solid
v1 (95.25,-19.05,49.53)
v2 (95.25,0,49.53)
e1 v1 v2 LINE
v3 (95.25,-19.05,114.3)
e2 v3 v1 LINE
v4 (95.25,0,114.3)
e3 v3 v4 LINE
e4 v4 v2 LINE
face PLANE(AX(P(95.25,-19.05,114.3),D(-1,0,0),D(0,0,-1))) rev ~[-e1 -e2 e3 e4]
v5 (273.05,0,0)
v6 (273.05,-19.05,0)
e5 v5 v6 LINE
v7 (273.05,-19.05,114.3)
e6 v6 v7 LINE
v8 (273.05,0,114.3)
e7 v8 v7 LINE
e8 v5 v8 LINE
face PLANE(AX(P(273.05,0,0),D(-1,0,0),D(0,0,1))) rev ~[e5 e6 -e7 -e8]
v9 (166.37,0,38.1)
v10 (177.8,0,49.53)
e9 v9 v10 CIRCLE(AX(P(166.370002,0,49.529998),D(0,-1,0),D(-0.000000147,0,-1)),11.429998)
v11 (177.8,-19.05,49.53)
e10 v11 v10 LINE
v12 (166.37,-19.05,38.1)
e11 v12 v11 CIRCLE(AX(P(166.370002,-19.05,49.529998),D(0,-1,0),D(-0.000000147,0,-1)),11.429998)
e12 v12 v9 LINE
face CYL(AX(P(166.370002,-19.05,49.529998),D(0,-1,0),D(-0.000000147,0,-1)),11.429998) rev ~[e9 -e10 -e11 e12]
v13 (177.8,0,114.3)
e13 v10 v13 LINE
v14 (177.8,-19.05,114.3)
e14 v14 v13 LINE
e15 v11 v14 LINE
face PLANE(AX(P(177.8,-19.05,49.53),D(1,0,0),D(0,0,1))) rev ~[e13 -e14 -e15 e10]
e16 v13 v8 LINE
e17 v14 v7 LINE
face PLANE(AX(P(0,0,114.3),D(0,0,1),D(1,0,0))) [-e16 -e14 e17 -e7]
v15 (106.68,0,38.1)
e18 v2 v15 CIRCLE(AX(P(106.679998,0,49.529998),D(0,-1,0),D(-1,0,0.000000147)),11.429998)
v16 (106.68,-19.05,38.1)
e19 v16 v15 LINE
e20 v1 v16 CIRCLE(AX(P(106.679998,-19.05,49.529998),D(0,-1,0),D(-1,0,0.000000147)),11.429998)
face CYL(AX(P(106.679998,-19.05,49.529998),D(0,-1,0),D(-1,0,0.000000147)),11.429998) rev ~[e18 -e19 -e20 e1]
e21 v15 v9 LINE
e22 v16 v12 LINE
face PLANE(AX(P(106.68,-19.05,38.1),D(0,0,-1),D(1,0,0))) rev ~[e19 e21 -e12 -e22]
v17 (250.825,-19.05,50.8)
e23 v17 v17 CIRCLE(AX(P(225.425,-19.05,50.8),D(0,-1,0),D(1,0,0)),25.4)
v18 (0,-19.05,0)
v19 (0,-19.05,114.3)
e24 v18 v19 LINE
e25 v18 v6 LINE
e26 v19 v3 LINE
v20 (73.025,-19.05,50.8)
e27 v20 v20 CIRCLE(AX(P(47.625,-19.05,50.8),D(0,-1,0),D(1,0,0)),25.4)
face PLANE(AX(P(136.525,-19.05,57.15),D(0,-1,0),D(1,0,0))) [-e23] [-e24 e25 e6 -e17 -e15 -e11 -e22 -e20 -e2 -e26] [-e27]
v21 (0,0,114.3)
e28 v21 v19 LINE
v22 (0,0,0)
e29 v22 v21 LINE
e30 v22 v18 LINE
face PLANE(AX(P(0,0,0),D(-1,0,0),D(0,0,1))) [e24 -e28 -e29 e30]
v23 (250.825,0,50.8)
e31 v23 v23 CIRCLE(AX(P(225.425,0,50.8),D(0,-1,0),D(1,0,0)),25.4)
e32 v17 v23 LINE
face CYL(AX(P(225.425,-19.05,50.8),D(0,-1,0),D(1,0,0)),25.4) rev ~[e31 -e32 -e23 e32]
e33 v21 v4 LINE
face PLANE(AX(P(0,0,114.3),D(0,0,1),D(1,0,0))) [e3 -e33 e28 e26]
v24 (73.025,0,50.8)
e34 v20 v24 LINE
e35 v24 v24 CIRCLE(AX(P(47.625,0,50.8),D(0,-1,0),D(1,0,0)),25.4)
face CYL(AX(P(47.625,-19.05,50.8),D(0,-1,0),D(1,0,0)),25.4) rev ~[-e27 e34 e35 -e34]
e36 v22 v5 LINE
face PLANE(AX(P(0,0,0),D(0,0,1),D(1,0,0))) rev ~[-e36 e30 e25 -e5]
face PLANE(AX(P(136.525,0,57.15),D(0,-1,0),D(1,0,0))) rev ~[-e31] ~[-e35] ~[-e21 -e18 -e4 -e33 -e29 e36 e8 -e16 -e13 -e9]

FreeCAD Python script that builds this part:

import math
import FreeCAD as App
import Part
import Sketcher

V = App.Vector
Q = App.Units.Quantity


def add_polygon(sketch, points):
    """Adds a closed chain of lines whose ends are joined by coincident constraints."""
    first, n = sketch.GeometryCount, len(points)
    for a, b in zip(points, points[1:] + points[:1]):
        sketch.addGeometry(Part.LineSegment(App.Vector(*a, 0), App.Vector(*b, 0)), False)
    for i in range(n):
        sketch.addConstraint(Sketcher.Constraint("Coincident", first + i, 2, first + (i + 1) % n, 1))

doc = App.newDocument("Part")
body = doc.addObject("PartDesign::Body", "Body")

sketch1 = body.newObject("Sketcher::SketchObject", "Sketch")
sketch1.AttachmentSupport = (doc.getObject("XZ_Plane"), [""])
sketch1.MapMode = "FlatFace"
add_polygon(sketch1, [(0, 114), (0, 0), (273, 0), (273, 114)])
sketch1.addConstraint(Sketcher.Constraint("Vertical", 0))
sketch1.addConstraint(Sketcher.Constraint("Horizontal", 1))
sketch1.addConstraint(Sketcher.Constraint("Vertical", 2))
sketch1.addConstraint(Sketcher.Constraint("Horizontal", 3))
sketch1.addConstraint(Sketcher.Constraint("Coincident", 0, 2, -1, 1))
sketch1.addConstraint(Sketcher.Constraint("DistanceY", 0, 2, 0, 1, Q("4.5 in")))
sketch1.addConstraint(Sketcher.Constraint("DistanceX", 1, 1, 1, 2, Q("10.75 in")))
pad1 = body.newObject("PartDesign::Pad", "Pad")
pad1.Profile = sketch1
pad1.Length = Q("0.75 in")

sketch2 = body.newObject("Sketcher::SketchObject", "Sketch001")
sketch2.AttachmentSupport = (doc.getObject("XZ_Plane"), [""])
sketch2.MapMode = "FlatFace"
sketch2.AttachmentOffset = App.Placement(V(0, 0, 0.75 * 25.4), App.Rotation())
sketch2.addGeometry(Part.Circle(V(48, 51, 0), V(0, 0, 1), 25), False)
sketch2.addGeometry(Part.Circle(V(225, 51, 0), V(0, 0, 1), 25), False)
sketch2.addConstraint(Sketcher.Constraint("Equal", 0, 1))
sketch2.addConstraint(Sketcher.Constraint("Horizontal", 0, 3, 1, 3))
sketch2.addConstraint(Sketcher.Constraint("Diameter", 0, Q("2 in")))
sketch2.addConstraint(Sketcher.Constraint("DistanceY", -1, 1, 0, 3, Q("2 in")))
sketch2.addConstraint(Sketcher.Constraint("DistanceX", 0, 3, 1, 3, Q("7 in")))
sketch2.addConstraint(Sketcher.Constraint("DistanceX", -1, 1, 0, 3, Q("1.875 in")))
pocket1 = body.newObject("PartDesign::Pocket", "Pocket")
pocket1.Profile = sketch2
pocket1.Length = Q("1 in")

sketch3 = body.newObject("Sketcher::SketchObject", "Sketch002")
sketch3.AttachmentSupport = (doc.getObject("XZ_Plane"), [""])
sketch3.MapMode = "FlatFace"
sketch3.AttachmentOffset = App.Placement(V(0, 0, 0.75 * 25.4), App.Rotation())
sketch3.addGeometry(Part.LineSegment(V(178, 114, 0), V(95, 114, 0)), False)
sketch3.addGeometry(Part.LineSegment(V(95, 114, 0), V(95, 50, 0)), False)
sketch3.addGeometry(Part.ArcOfCircle(Part.Circle(V(107, 50, 0), V(0, 0, 1), 11), math.radians(180), math.radians(270)), False)
sketch3.addGeometry(Part.LineSegment(V(107, 38, 0), V(166, 38, 0)), False)
sketch3.addGeometry(Part.ArcOfCircle(Part.Circle(V(166, 50, 0), V(0, 0, 1), 11), math.radians(-90), math.radians(0)), False)
sketch3.addGeometry(Part.LineSegment(V(178, 50, 0), V(178, 114, 0)), False)
sketch3.addConstraint(Sketcher.Constraint("Coincident", 0, 2, 1, 1))
sketch3.addConstraint(Sketcher.Constraint("Tangent", 1, 2, 2, 1))
sketch3.addConstraint(Sketcher.Constraint("Tangent", 2, 2, 3, 1))
sketch3.addConstraint(Sketcher.Constraint("Tangent", 3, 2, 4, 1))
sketch3.addConstraint(Sketcher.Constraint("Tangent", 4, 2, 5, 1))
sketch3.addConstraint(Sketcher.Constraint("Coincident", 5, 2, 0, 1))
sketch3.addConstraint(Sketcher.Constraint("Horizontal", 0))
sketch3.addConstraint(Sketcher.Constraint("Vertical", 1))
sketch3.addConstraint(Sketcher.Constraint("Horizontal", 3))
sketch3.addConstraint(Sketcher.Constraint("Vertical", 5))
sketch3.addConstraint(Sketcher.Constraint("Equal", 2, 4))
sketch3.addConstraint(Sketcher.Constraint("Radius", 2, Q("0.4499999 in")))
sketch3.addConstraint(Sketcher.Constraint("DistanceX", -1, 1, 4, 2, Q("7 in")))
sketch3.addConstraint(Sketcher.Constraint("DistanceY", 2, 2, 0, 2, Q("3 in")))
sketch3.addConstraint(Sketcher.Constraint("DistanceX", 0, 2, 0, 1, Q("3.25 in")))
sketch3.addConstraint(Sketcher.Constraint("DistanceY", -1, 1, 0, 2, Q("4.5 in")))
pocket2 = body.newObject("PartDesign::Pocket", "Pocket001")
pocket2.Profile = sketch3
pocket2.Length = Q("1 in")

doc.recompute()
